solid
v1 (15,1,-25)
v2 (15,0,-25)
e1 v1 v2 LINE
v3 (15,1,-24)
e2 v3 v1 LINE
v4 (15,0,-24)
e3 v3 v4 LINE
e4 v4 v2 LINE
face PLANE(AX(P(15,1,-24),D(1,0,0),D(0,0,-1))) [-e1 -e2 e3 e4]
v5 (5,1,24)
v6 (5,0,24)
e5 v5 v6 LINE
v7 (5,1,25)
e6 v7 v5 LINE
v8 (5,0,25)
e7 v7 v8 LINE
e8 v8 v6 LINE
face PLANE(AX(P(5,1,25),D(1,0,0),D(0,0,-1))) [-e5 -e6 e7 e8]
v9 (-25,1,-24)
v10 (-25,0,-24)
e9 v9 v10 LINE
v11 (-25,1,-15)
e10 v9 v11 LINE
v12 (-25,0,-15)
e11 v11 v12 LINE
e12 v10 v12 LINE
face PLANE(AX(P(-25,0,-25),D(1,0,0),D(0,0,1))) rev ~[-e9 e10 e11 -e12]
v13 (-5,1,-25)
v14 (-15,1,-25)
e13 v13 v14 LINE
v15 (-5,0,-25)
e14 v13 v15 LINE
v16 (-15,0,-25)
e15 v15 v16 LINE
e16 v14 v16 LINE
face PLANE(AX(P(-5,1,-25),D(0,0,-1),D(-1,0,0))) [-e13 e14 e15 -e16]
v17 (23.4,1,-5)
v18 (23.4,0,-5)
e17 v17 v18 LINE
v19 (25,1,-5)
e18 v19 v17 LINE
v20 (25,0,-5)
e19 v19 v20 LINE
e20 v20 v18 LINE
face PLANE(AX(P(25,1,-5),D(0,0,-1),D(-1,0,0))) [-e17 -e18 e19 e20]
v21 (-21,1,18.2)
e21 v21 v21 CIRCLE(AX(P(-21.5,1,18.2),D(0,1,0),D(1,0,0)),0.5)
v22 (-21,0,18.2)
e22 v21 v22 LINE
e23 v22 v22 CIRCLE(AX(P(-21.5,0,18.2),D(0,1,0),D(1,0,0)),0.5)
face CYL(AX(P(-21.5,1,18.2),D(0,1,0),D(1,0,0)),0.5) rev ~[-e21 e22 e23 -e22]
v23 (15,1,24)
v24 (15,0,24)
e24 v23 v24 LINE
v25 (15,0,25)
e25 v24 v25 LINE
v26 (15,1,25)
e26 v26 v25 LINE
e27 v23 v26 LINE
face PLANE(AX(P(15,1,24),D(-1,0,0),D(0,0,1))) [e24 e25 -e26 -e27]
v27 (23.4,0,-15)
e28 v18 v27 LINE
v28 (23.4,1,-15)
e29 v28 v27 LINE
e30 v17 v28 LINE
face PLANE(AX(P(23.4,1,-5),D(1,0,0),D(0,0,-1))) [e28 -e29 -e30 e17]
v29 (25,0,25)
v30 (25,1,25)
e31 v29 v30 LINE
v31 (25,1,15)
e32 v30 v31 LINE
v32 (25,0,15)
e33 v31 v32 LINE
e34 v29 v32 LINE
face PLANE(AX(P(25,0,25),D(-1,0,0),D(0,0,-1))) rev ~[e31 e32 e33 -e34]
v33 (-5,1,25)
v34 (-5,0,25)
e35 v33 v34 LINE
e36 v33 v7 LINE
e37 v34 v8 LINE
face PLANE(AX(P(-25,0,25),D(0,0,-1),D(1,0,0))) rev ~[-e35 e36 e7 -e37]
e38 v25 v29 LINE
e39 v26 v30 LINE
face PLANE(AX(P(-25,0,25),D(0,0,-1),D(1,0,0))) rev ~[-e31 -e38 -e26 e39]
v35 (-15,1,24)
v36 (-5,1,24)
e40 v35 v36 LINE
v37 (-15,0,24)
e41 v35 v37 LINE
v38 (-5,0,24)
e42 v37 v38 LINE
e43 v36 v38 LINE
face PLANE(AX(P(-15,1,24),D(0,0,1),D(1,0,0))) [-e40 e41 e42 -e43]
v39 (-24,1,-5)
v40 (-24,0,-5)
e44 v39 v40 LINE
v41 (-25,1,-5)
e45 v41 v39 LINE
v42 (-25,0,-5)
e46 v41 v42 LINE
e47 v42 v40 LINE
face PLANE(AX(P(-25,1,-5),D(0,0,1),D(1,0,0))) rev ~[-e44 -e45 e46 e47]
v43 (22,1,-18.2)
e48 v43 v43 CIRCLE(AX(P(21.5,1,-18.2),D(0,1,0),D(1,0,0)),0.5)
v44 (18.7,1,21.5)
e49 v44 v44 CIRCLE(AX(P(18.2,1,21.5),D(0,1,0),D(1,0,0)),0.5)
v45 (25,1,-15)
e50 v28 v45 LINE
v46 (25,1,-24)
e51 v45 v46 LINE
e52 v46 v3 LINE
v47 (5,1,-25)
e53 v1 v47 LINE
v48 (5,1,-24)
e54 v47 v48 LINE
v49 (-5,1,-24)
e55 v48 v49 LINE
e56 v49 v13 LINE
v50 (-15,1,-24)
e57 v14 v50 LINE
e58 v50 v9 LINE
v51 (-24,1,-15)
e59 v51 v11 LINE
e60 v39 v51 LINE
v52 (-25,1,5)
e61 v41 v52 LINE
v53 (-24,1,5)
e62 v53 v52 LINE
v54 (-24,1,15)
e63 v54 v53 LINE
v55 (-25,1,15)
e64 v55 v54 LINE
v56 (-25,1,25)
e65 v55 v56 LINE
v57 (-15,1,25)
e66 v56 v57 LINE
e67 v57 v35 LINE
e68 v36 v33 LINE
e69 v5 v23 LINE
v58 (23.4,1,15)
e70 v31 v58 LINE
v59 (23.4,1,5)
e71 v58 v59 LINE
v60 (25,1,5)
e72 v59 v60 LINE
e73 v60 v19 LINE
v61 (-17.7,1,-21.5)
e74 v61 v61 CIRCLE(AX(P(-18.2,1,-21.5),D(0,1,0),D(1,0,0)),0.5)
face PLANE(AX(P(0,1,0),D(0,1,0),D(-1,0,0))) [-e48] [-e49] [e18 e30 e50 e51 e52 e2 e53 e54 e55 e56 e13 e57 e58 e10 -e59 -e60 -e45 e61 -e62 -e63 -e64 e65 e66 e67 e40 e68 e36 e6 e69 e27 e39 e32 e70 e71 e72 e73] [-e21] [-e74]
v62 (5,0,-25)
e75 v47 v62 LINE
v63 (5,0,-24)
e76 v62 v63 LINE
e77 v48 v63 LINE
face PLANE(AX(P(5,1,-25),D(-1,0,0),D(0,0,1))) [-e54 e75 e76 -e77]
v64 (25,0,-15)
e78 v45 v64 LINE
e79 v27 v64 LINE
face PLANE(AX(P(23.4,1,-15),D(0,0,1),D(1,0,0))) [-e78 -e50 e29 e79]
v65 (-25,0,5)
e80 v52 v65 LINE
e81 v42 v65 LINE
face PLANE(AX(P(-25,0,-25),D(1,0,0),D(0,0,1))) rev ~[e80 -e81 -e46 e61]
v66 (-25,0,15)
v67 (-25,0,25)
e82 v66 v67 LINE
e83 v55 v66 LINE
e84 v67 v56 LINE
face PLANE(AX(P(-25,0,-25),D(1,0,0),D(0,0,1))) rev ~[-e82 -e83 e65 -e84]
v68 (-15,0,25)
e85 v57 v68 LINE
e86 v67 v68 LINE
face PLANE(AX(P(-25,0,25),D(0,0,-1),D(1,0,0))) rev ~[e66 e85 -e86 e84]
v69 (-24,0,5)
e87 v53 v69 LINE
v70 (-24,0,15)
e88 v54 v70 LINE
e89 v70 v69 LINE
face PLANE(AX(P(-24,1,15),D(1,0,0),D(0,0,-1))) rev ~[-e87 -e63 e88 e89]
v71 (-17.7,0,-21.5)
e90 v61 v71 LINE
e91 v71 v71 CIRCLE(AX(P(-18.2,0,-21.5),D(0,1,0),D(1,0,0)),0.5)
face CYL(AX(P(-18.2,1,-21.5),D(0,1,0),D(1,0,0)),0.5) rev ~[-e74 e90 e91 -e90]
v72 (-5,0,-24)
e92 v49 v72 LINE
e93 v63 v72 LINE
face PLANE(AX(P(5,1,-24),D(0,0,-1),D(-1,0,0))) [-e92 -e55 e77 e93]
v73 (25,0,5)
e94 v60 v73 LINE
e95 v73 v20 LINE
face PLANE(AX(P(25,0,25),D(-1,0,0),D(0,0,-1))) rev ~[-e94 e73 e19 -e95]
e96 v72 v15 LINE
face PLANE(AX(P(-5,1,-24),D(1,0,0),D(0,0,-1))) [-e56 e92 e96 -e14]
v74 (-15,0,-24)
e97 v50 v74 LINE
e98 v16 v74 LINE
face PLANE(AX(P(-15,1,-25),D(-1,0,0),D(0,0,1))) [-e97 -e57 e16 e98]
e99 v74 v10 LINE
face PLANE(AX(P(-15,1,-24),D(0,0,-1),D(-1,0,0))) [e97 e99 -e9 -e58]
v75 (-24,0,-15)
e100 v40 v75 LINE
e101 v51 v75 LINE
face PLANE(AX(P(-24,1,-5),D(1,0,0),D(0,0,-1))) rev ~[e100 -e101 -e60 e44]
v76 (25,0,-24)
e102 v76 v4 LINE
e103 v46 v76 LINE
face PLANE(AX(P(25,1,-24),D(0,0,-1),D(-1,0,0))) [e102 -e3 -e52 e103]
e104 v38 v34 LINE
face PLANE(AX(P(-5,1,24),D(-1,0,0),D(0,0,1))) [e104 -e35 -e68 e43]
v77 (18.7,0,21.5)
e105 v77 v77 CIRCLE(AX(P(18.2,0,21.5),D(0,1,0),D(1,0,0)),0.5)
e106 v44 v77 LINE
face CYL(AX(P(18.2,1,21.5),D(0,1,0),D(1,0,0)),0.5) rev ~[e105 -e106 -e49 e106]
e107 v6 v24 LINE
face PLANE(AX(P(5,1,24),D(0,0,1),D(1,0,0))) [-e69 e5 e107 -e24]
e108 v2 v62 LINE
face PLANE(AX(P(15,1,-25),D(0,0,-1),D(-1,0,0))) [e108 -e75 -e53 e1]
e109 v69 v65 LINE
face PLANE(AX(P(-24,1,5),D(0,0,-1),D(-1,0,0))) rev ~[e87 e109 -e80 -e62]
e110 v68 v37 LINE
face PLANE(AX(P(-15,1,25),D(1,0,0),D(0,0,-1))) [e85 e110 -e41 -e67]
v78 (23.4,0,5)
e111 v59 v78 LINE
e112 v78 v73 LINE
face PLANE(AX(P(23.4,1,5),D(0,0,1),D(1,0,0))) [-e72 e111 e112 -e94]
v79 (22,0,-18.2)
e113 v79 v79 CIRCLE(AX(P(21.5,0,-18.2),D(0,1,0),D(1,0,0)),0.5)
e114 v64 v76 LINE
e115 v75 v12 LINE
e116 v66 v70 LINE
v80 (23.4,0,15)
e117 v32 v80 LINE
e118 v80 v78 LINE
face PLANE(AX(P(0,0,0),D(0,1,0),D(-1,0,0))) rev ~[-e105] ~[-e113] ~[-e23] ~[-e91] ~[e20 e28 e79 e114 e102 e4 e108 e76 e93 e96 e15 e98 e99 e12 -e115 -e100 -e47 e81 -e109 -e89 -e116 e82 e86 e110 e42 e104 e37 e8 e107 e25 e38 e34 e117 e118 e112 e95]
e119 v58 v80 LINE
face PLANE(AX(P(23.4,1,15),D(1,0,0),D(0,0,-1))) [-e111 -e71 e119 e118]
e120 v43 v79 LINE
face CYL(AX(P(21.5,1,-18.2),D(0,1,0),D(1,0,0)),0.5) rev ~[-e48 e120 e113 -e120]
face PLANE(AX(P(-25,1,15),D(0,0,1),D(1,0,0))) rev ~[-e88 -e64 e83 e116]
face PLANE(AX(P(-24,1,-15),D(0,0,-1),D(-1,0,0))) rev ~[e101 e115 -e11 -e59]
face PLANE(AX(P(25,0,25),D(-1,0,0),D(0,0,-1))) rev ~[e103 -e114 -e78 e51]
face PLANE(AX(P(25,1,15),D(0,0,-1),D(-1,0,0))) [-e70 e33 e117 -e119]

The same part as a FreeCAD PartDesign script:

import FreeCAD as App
import Part
import Sketcher
from FreeCAD import Vector

doc = App.newDocument("Part")
body = doc.addObject("PartDesign::Body", "Body")

# Sketch on XZ plane
sketch1 = body.newObject("Sketcher::SketchObject", "Sketch")
sketch1.AttachmentSupport = (doc.getObject("XZ_Plane"), [""])
sketch1.MapMode = "FlatFace"
sketch1.addGeometry(Part.LineSegment(Vector(25, 25, 0), Vector(25, -25, 0)), False)
sketch1.addGeometry(Part.LineSegment(Vector(25, -25, 0), Vector(-25, -25, 0)), False)
sketch1.addGeometry(Part.LineSegment(Vector(-25, -25, 0), Vector(-25, 25, 0)), False)
sketch1.addGeometry(Part.LineSegment(Vector(-25, 25, 0), Vector(25, 25, 0)), False)
sketch1.addConstraint(Sketcher.Constraint("Coincident", 0, 2, 1, 1))
sketch1.addConstraint(Sketcher.Constraint("Coincident", 1, 2, 2, 1))
sketch1.addConstraint(Sketcher.Constraint("Coincident", 2, 2, 3, 1))
sketch1.addConstraint(Sketcher.Constraint("Coincident", 3, 2, 0, 1))
sketch1.addConstraint(Sketcher.Constraint("Vertical", 0))
sketch1.addConstraint(Sketcher.Constraint("Horizontal", 1))
sketch1.addConstraint(Sketcher.Constraint("Vertical", 2))
sketch1.addConstraint(Sketcher.Constraint("Horizontal", 3))
sketch1.addConstraint(Sketcher.Constraint("Symmetric", 0, 2, 2, 2, -1, 1))
sketch1.addConstraint(Sketcher.Constraint("Equal", 3, 0))
sketch1.addConstraint(Sketcher.Constraint("DistanceX", 1, 2, 1, 1, 50.0))
pad1 = body.newObject("PartDesign::Pad", "Pad")
pad1.Profile = sketch1
pad1.Length = 1
pad1.Reversed = True

# Sketch on XZ plane
sketch2 = body.newObject("Sketcher::SketchObject", "Sketch001")
sketch2.AttachmentSupport = (doc.getObject("XZ_Plane"), [""])
sketch2.MapMode = "FlatFace"
sketch2.AttachmentOffset = App.Placement(Vector(0, 0, -1), App.Rotation())
sketch2.addGeometry(Part.LineSegment(Vector(23.4, 15, 0), Vector(25, 15, 0)), False)
sketch2.addGeometry(Part.LineSegment(Vector(25, 15, 0), Vector(25, 5, 0)), False)
sketch2.addGeometry(Part.LineSegment(Vector(25, 5, 0), Vector(23.4, 5, 0)), False)
sketch2.addGeometry(Part.LineSegment(Vector(23.4, 5, 0), Vector(23.4, 15, 0)), False)
sketch2.addGeometry(Part.LineSegment(Vector(23.4, -5, 0), Vector(25, -5, 0)), False)
sketch2.addGeometry(Part.LineSegment(Vector(25, -5, 0), Vector(25, -15, 0)), False)
sketch2.addGeometry(Part.LineSegment(Vector(25, -15, 0), Vector(23.4, -15, 0)), False)
sketch2.addGeometry(Part.LineSegment(Vector(23.4, -15, 0), Vector(23.4, -5, 0)), False)
sketch2.addConstraint(Sketcher.Constraint("Coincident", 0, 2, 1, 1))
sketch2.addConstraint(Sketcher.Constraint("Coincident", 1, 2, 2, 1))
sketch2.addConstraint(Sketcher.Constraint("Coincident", 2, 2, 3, 1))
sketch2.addConstraint(Sketcher.Constraint("Coincident", 3, 2, 0, 1))
sketch2.addConstraint(Sketcher.Constraint("Coincident", 4, 2, 5, 1))
sketch2.addConstraint(Sketcher.Constraint("Coincident", 5, 2, 6, 1))
sketch2.addConstraint(Sketcher.Constraint("Coincident", 6, 2, 7, 1))
sketch2.addConstraint(Sketcher.Constraint("Coincident", 7, 2, 4, 1))
sketch2.addConstraint(Sketcher.Constraint("Horizontal", 0))
sketch2.addConstraint(Sketcher.Constraint("Vertical", 1))
sketch2.addConstraint(Sketcher.Constraint("Horizontal", 2))
sketch2.addConstraint(Sketcher.Constraint("Vertical", 3))
sketch2.addConstraint(Sketcher.Constraint("Horizontal", 4))
sketch2.addConstraint(Sketcher.Constraint("Vertical", 5))
sketch2.addConstraint(Sketcher.Constraint("Horizontal", 6))
sketch2.addConstraint(Sketcher.Constraint("Vertical", 7))
sketch2.addConstraint(Sketcher.Constraint("Symmetric", 1, 2, 4, 2, -1))
sketch2.addConstraint(Sketcher.Constraint("Symmetric", 3, 2, 6, 2, -1))
sketch2.addConstraint(Sketcher.Constraint("DistanceY", 1, 2, 1, 1, 10.0))
sketch2.addConstraint(Sketcher.Constraint("DistanceX", 0, 1, 0, 2, 1.6))
sketch2.addConstraint(Sketcher.Constraint("DistanceY", 4, 2, 1, 2, 10.0))
sketch2.addConstraint(Sketcher.Constraint("DistanceX", -1, 1, 0, 2, 25.0))
pocket1 = body.newObject("PartDesign::Pocket", "Pocket")
pocket1.Profile = sketch2
pocket1.Length = 1
pocket1.Reversed = True

# Sketch on XZ plane
sketch3 = body.newObject("Sketcher::SketchObject", "Sketch002")
sketch3.AttachmentSupport = (doc.getObject("XZ_Plane"), [""])
sketch3.MapMode = "FlatFace"
sketch3.AttachmentOffset = App.Placement(Vector(0, 0, -1), App.Rotation())
sketch3.addGeometry(Part.LineSegment(Vector(25, -24, 0), Vector(25, -27, 0)), False)
sketch3.addGeometry(Part.LineSegment(Vector(25, -27, 0), Vector(-25, -27, 0)), False)
sketch3.addGeometry(Part.LineSegment(Vector(-25, -27, 0), Vector(-25, -24, 0)), False)
sketch3.addGeometry(Part.LineSegment(Vector(-25, -24, 0), Vector(-15, -24, 0)), False)
sketch3.addGeometry(Part.LineSegment(Vector(-15, -24, 0), Vector(-15, -25, 0)), False)
sketch3.addGeometry(Part.LineSegment(Vector(-15, -25, 0), Vector(-5, -25, 0)), False)
sketch3.addGeometry(Part.LineSegment(Vector(-5, -25, 0), Vector(-5, -24, 0)), False)
sketch3.addGeometry(Part.LineSegment(Vector(-5, -24, 0), Vector(5, -24, 0)), False)
sketch3.addGeometry(Part.LineSegment(Vector(5, -24, 0), Vector(5, -25, 0)), False)
sketch3.addGeometry(Part.LineSegment(Vector(5, -25, 0), Vector(15, -25, 0)), False)
sketch3.addGeometry(Part.LineSegment(Vector(15, -25, 0), Vector(15, -24, 0)), False)
sketch3.addGeometry(Part.LineSegment(Vector(15, -24, 0), Vector(25, -24, 0)), False)
sketch3.addConstraint(Sketcher.Constraint("Coincident", 0, 2, 1, 1))
sketch3.addConstraint(Sketcher.Constraint("Coincident", 1, 2, 2, 1))
sketch3.addConstraint(Sketcher.Constraint("Coincident", 2, 2, 3, 1))
sketch3.addConstraint(Sketcher.Constraint("Coincident", 3, 2, 4, 1))
sketch3.addConstraint(Sketcher.Constraint("Coincident", 4, 2, 5, 1))
sketch3.addConstraint(Sketcher.Constraint("Coincident", 5, 2, 6, 1))
sketch3.addConstraint(Sketcher.Constraint("Coincident", 6, 2, 7, 1))
sketch3.addConstraint(Sketcher.Constraint("Coincident", 7, 2, 8, 1))
sketch3.addConstraint(Sketcher.Constraint("Coincident", 8, 2, 9, 1))
sketch3.addConstraint(Sketcher.Constraint("Coincident", 9, 2, 10, 1))
sketch3.addConstraint(Sketcher.Constraint("Coincident", 10, 2, 11, 1))
sketch3.addConstraint(Sketcher.Constraint("Coincident", 11, 2, 0, 1))
sketch3.addConstraint(Sketcher.Constraint("Vertical", 0))
sketch3.addConstraint(Sketcher.Constraint("Horizontal", 1))
sketch3.addConstraint(Sketcher.Constraint("Vertical", 2))
sketch3.addConstraint(Sketcher.Constraint("Horizontal", 3))
sketch3.addConstraint(Sketcher.Constraint("Vertical", 4))
sketch3.addConstraint(Sketcher.Constraint("Horizontal", 5))
sketch3.addConstraint(Sketcher.Constraint("Vertical", 6))
sketch3.addConstraint(Sketcher.Constraint("Horizontal", 7))
sketch3.addConstraint(Sketcher.Constraint("Vertical", 8))
sketch3.addConstraint(Sketcher.Constraint("Horizontal", 9))
sketch3.addConstraint(Sketcher.Constraint("Vertical", 10))
sketch3.addConstraint(Sketcher.Constraint("Horizontal", 11))
sketch3.addConstraint(Sketcher.Constraint("Symmetric", 5, 2, 8, 2, -2))
sketch3.addConstraint(Sketcher.Constraint("Symmetric", 3, 2, 10, 2, -2))
sketch3.addConstraint(Sketcher.Constraint("Horizontal", 3, 2, 6, 2))
sketch3.addConstraint(Sketcher.Constraint("Equal", 3, 5))
sketch3.addConstraint(Sketcher.Constraint("Equal", 5, 7))
sketch3.addConstraint(Sketcher.Constraint("Equal", 9, 11))
sketch3.addConstraint(Sketcher.Constraint("DistanceX", 1, 2, 1, 1, 50.0))
sketch3.addConstraint(Sketcher.Constraint("DistanceY", 0, 2, 0, 1, 3.0))
sketch3.addConstraint(Sketcher.Constraint("DistanceY", 4, 2, 4, 1, 1.0))
sketch3.addConstraint(Sketcher.Constraint("DistanceY", 0, 2, -1, 1, 27.0))
pocket2 = body.newObject("PartDesign::Pocket", "Pocket001")
pocket2.Profile = sketch3
pocket2.Length = 1
pocket2.Reversed = True

# Sketch on XZ plane
sketch4 = body.newObject("Sketcher::SketchObject", "Sketch003")
sketch4.AttachmentSupport = (doc.getObject("XZ_Plane"), [""])
sketch4.MapMode = "FlatFace"
sketch4.AttachmentOffset = App.Placement(Vector(0, 0, -1), App.Rotation())
sketch4.addGeometry(Part.LineSegment(Vector(-25, 5, 0), Vector(-25, 15, 0)), False)
sketch4.addGeometry(Part.LineSegment(Vector(-25, 15, 0), Vector(-24, 15, 0)), False)
sketch4.addGeometry(Part.LineSegment(Vector(-24, 15, 0), Vector(-24, 5, 0)), False)
sketch4.addGeometry(Part.LineSegment(Vector(-24, 5, 0), Vector(-25, 5, 0)), False)
sketch4.addGeometry(Part.LineSegment(Vector(-25, -15, 0), Vector(-25, -5, 0)), False)
sketch4.addGeometry(Part.LineSegment(Vector(-25, -5, 0), Vector(-24, -5, 0)), False)
sketch4.addGeometry(Part.LineSegment(Vector(-24, -5, 0), Vector(-24, -15, 0)), False)
sketch4.addGeometry(Part.LineSegment(Vector(-24, -15, 0), Vector(-25, -15, 0)), False)
sketch4.addConstraint(Sketcher.Constraint("Coincident", 0, 2, 1, 1))
sketch4.addConstraint(Sketcher.Constraint("Coincident", 1, 2, 2, 1))
sketch4.addConstraint(Sketcher.Constraint("Coincident", 2, 2, 3, 1))
sketch4.addConstraint(Sketcher.Constraint("Coincident", 3, 2, 0, 1))
sketch4.addConstraint(Sketcher.Constraint("Coincident", 4, 2, 5, 1))
sketch4.addConstraint(Sketcher.Constraint("Coincident", 5, 2, 6, 1))
sketch4.addConstraint(Sketcher.Constraint("Coincident", 6, 2, 7, 1))
sketch4.addConstraint(Sketcher.Constraint("Coincident", 7, 2, 4, 1))
sketch4.addConstraint(Sketcher.Constraint("Vertical", 0))
sketch4.addConstraint(Sketcher.Constraint("Horizontal", 1))
sketch4.addConstraint(Sketcher.Constraint("Vertical", 2))
sketch4.addConstraint(Sketcher.Constraint("Horizontal", 3))
sketch4.addConstraint(Sketcher.Constraint("Vertical", 4))
sketch4.addConstraint(Sketcher.Constraint("Horizontal", 5))
sketch4.addConstraint(Sketcher.Constraint("Vertical", 6))
sketch4.addConstraint(Sketcher.Constraint("Horizontal", 7))
sketch4.addConstraint(Sketcher.Constraint("Symmetric", 3, 2, 4, 2, -1))
sketch4.addConstraint(Sketcher.Constraint("Symmetric", 1, 2, 6, 2, -1))
sketch4.addConstraint(Sketcher.Constraint("DistanceY", 0, 1, 0, 2, 10.0))
sketch4.addConstraint(Sketcher.Constraint("DistanceY", 4, 2, 3, 2, 10.0))
sketch4.addConstraint(Sketcher.Constraint("DistanceX", 1, 1, 1, 2, 1.0))
sketch4.addConstraint(Sketcher.Constraint("DistanceX", 0, 2, -1, 1, 25.0))
pocket3 = body.newObject("PartDesign::Pocket", "Pocket002")
pocket3.Profile = sketch4
pocket3.Length = 1
pocket3.Reversed = True

# Sketch on XZ plane
sketch5 = body.newObject("Sketcher::SketchObject", "Sketch004")
sketch5.AttachmentSupport = (doc.getObject("XZ_Plane"), [""])
sketch5.MapMode = "FlatFace"
sketch5.AttachmentOffset = App.Placement(Vector(0, 0, -1), App.Rotation())
sketch5.addGeometry(Part.LineSegment(Vector(-15, 24, 0), Vector(-15, 25, 0)), False)
sketch5.addGeometry(Part.LineSegment(Vector(-15, 25, 0), Vector(-5, 25, 0)), False)
sketch5.addGeometry(Part.LineSegment(Vector(-5, 25, 0), Vector(-5, 24, 0)), False)
sketch5.addGeometry(Part.LineSegment(Vector(-5, 24, 0), Vector(-15, 24, 0)), False)
sketch5.addGeometry(Part.LineSegment(Vector(5, 24, 0), Vector(5, 25, 0)), False)
sketch5.addGeometry(Part.LineSegment(Vector(5, 25, 0), Vector(15, 25, 0)), False)
sketch5.addGeometry(Part.LineSegment(Vector(15, 25, 0), Vector(15, 24, 0)), False)
sketch5.addGeometry(Part.LineSegment(Vector(15, 24, 0), Vector(5, 24, 0)), False)
sketch5.addConstraint(Sketcher.Constraint("Coincident", 0, 2, 1, 1))
sketch5.addConstraint(Sketcher.Constraint("Coincident", 1, 2, 2, 1))
sketch5.addConstraint(Sketcher.Constraint("Coincident", 2, 2, 3, 1))
sketch5.addConstraint(Sketcher.Constraint("Coincident", 3, 2, 0, 1))
sketch5.addConstraint(Sketcher.Constraint("Coincident", 4, 2, 5, 1))
sketch5.addConstraint(Sketcher.Constraint("Coincident", 5, 2, 6, 1))
sketch5.addConstraint(Sketcher.Constraint("Coincident", 6, 2, 7, 1))
sketch5.addConstraint(Sketcher.Constraint("Coincident", 7, 2, 4, 1))
sketch5.addConstraint(Sketcher.Constraint("Vertical", 0))
sketch5.addConstraint(Sketcher.Constraint("Horizontal", 1))
sketch5.addConstraint(Sketcher.Constraint("Vertical", 2))
sketch5.addConstraint(Sketcher.Constraint("Horizontal", 3))
sketch5.addConstraint(Sketcher.Constraint("Vertical", 4))
sketch5.addConstraint(Sketcher.Constraint("Horizontal", 5))
sketch5.addConstraint(Sketcher.Constraint("Vertical", 6))
sketch5.addConstraint(Sketcher.Constraint("Horizontal", 7))
sketch5.addConstraint(Sketcher.Constraint("Symmetric", 1, 2, 4, 2, -2))
sketch5.addConstraint(Sketcher.Constraint("Symmetric", 3, 2, 6, 2, -2))
sketch5.addConstraint(Sketcher.Constraint("DistanceX", 1, 1, 1, 2, 10.0))
sketch5.addConstraint(Sketcher.Constraint("DistanceX", 1, 2, 4, 2, 10.0))
sketch5.addConstraint(Sketcher.Constraint("DistanceY", 0, 1, 0, 2, 1.0))
sketch5.addConstraint(Sketcher.Constraint("DistanceY", -1, 1, 0, 2, 25.0))
pocket4 = body.newObject("PartDesign::Pocket", "Pocket003")
pocket4.Profile = sketch5
pocket4.Length = 1
pocket4.Reversed = True

# Sketch on XZ plane
sketch6 = body.newObject("Sketcher::SketchObject", "Sketch005")
sketch6.AttachmentSupport = (doc.getObject("XZ_Plane"), [""])
sketch6.MapMode = "FlatFace"
sketch6.AttachmentOffset = App.Placement(Vector(0, 0, -1), App.Rotation())
sketch6.addGeometry(Part.Circle(Vector(-21.5, 18.2, 0), Vector(0, 0, 1), 0.5), False)
sketch6.addGeometry(Part.Circle(Vector(-18.2, -21.5, 0), Vector(0, 0, 1), 0.5), False)
sketch6.addGeometry(Part.Circle(Vector(18.2, 21.5, 0), Vector(0, 0, 1), 0.5), False)
sketch6.addGeometry(Part.Circle(Vector(21.5, -18.2, 0), Vector(0, 0, 1), 0.5), False)
sketch6.addConstraint(Sketcher.Constraint("Equal", 0, 1))
sketch6.addConstraint(Sketcher.Constraint("Equal", 1, 2))
sketch6.addConstraint(Sketcher.Constraint("Equal", 2, 3))
sketch6.addConstraint(Sketcher.Constraint("Symmetric", 1, 3, 2, 3, -1, 1))
sketch6.addConstraint(Sketcher.Constraint("Symmetric", 0, 3, 3, 3, -1, 1))
sketch6.addConstraint(Sketcher.Constraint("Diameter", 0, 1.0))
sketch6.addConstraint(Sketcher.Constraint("DistanceY", 1, 3, 2, 3, 43.0))
sketch6.addConstraint(Sketcher.Constraint("DistanceX", 0, 3, 3, 3, 43.0))
sketch6.addConstraint(Sketcher.Constraint("DistanceY", -1, 1, 0, 3, 18.2))
sketch6.addConstraint(Sketcher.Constraint("DistanceX", 1, 3, -1, 1, 18.2))
pocket5 = body.newObject("PartDesign::Pocket", "Pocket004")
pocket5.Profile = sketch6
pocket5.Length = 1
pocket5.Reversed = True

doc.recompute()
